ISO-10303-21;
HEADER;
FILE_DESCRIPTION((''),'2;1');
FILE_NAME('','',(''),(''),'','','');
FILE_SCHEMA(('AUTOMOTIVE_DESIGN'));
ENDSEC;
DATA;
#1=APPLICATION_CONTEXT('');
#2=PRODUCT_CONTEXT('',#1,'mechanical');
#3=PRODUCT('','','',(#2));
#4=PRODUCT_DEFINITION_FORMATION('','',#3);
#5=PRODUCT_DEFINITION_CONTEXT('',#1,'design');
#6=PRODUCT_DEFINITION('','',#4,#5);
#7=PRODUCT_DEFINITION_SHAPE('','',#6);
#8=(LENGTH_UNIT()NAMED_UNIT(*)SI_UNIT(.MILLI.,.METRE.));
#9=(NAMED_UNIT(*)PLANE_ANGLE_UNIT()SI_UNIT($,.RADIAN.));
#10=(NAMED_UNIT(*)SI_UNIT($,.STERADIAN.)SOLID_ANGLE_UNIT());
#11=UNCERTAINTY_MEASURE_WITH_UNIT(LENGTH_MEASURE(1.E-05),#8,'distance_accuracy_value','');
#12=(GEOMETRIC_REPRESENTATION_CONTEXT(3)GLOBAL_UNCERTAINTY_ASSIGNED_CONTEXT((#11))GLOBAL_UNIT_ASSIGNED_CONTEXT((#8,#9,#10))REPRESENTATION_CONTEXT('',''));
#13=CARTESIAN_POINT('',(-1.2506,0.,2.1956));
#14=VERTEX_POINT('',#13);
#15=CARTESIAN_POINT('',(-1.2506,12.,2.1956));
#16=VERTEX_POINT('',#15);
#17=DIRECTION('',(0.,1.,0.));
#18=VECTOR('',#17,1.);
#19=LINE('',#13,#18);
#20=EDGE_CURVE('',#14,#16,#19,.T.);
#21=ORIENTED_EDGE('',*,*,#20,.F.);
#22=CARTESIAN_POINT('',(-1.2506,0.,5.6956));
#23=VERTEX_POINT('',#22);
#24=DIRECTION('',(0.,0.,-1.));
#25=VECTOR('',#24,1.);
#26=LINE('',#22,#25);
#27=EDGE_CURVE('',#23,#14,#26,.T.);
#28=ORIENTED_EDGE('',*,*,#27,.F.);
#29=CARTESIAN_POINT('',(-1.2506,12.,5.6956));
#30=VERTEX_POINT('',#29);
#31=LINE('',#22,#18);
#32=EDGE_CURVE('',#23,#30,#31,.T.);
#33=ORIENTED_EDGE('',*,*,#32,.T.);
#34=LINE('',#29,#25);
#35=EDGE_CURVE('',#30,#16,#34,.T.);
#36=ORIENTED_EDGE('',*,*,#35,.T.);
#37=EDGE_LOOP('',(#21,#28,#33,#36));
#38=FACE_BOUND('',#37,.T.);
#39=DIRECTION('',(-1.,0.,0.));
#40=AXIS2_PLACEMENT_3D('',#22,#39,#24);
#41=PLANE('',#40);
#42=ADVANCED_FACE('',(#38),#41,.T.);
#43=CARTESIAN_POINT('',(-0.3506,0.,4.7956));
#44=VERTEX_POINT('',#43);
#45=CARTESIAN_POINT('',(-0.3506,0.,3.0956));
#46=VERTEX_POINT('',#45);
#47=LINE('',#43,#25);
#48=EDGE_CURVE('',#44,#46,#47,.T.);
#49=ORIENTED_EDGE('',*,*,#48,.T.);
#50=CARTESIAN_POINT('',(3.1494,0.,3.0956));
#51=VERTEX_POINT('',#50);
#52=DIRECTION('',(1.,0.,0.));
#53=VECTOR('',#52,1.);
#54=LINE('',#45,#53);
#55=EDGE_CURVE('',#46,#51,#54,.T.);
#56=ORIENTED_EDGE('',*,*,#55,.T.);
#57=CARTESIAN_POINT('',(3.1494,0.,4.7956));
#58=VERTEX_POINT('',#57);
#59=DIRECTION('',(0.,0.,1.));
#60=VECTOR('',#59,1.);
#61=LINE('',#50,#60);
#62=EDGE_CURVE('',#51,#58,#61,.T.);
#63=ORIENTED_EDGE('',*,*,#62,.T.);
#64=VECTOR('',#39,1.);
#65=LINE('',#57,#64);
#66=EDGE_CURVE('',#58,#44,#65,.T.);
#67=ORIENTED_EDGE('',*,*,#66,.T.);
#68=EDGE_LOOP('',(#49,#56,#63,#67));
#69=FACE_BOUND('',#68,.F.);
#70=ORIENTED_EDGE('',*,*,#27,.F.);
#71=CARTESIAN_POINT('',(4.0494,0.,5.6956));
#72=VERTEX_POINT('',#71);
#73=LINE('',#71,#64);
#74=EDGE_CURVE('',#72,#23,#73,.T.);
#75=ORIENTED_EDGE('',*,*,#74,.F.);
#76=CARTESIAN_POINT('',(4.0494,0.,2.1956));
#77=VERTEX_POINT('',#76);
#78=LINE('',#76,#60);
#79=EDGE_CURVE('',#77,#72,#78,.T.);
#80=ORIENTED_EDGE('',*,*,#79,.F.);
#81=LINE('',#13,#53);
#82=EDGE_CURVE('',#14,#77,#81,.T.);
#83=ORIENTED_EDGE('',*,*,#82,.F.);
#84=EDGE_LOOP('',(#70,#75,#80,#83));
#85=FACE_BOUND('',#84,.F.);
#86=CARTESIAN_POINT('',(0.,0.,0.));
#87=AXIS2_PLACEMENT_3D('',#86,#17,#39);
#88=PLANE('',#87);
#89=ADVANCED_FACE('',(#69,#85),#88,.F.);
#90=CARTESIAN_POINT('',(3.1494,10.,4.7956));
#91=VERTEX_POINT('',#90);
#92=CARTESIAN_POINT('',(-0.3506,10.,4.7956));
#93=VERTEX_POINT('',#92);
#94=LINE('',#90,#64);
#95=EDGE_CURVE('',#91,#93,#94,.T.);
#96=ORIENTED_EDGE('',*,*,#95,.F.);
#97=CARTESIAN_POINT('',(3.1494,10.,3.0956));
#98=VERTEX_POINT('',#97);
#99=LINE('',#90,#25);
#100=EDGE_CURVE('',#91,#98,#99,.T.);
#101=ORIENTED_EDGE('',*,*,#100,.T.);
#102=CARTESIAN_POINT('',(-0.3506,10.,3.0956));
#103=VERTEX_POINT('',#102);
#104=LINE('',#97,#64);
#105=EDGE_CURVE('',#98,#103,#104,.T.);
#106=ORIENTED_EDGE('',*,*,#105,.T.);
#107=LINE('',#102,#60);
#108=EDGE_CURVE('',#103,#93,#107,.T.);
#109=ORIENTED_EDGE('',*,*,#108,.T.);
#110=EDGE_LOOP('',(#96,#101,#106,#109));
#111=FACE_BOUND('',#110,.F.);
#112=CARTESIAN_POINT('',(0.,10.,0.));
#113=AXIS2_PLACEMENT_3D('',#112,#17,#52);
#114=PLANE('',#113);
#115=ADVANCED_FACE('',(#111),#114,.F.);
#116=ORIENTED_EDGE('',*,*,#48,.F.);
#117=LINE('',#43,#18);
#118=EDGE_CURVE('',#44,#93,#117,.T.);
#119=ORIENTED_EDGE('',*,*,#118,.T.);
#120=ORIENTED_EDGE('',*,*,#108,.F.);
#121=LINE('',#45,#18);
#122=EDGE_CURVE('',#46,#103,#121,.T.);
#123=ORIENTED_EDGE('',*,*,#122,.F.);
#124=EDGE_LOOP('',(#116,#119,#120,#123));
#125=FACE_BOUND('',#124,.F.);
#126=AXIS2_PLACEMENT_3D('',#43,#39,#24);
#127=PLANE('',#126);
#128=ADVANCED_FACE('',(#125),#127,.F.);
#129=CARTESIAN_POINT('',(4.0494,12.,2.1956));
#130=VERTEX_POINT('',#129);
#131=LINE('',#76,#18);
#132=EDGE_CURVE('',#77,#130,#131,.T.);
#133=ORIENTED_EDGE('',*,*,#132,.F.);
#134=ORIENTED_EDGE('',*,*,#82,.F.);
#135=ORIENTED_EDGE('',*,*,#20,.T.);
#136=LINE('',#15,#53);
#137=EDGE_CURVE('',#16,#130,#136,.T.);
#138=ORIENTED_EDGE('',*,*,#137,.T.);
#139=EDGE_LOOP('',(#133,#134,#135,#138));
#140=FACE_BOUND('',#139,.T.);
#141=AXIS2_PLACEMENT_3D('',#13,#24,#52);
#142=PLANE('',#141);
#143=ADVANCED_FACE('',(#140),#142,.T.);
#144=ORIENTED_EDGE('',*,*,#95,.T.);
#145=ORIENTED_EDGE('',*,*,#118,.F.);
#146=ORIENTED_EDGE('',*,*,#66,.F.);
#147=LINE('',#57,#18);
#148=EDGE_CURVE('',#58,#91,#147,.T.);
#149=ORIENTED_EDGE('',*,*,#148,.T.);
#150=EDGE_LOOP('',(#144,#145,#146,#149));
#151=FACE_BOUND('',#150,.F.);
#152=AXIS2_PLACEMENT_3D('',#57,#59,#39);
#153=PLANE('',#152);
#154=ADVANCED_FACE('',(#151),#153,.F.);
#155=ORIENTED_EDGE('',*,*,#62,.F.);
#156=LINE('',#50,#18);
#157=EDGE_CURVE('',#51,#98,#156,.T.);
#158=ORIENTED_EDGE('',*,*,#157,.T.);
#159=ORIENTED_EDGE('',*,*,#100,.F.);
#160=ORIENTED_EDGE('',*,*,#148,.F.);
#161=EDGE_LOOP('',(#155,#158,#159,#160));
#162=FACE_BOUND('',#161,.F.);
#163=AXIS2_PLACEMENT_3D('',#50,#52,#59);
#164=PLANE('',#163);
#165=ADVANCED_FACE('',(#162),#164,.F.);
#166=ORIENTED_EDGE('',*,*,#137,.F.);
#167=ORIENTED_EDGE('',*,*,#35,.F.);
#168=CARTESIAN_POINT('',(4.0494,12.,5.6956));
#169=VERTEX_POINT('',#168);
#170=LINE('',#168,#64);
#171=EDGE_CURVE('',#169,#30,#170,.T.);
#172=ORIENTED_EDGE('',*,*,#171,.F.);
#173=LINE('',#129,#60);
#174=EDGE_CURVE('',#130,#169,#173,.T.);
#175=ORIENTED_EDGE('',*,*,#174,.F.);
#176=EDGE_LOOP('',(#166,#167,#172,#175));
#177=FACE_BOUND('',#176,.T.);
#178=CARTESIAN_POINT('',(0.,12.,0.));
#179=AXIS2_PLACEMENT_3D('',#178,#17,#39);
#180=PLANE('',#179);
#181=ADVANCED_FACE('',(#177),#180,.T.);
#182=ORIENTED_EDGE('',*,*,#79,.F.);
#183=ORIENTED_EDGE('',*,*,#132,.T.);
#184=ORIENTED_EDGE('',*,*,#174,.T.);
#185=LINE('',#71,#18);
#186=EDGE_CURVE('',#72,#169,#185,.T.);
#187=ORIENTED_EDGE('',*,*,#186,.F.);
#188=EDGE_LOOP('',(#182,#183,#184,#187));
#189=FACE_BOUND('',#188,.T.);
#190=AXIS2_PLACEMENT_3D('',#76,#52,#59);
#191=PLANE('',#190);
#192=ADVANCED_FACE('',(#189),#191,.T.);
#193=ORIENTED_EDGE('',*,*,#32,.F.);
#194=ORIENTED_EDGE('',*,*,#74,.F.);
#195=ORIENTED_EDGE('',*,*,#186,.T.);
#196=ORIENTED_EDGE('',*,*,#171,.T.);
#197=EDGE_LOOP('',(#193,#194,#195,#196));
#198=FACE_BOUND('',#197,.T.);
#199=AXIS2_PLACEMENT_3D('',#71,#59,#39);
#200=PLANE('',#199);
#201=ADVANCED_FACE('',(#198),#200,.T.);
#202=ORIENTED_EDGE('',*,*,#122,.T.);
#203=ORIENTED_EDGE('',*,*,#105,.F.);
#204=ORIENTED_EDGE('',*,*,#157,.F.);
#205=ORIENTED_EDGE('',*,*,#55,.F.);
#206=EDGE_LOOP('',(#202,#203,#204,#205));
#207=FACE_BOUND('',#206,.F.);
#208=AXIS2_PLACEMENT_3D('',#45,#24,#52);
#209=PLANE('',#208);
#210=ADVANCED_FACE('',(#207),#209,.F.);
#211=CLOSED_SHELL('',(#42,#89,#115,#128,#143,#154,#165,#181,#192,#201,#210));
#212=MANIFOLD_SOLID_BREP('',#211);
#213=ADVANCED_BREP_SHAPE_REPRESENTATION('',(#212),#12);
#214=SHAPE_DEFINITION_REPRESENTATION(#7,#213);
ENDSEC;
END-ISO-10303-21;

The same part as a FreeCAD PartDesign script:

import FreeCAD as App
import Part
import Sketcher


def add_polygon(sketch, points):
    """Adds a closed chain of lines whose ends are joined by coincident constraints."""
    first, n = sketch.GeometryCount, len(points)
    for a, b in zip(points, points[1:] + points[:1]):
        sketch.addGeometry(Part.LineSegment(App.Vector(*a, 0), App.Vector(*b, 0)), False)
    for i in range(n):
        sketch.addConstraint(Sketcher.Constraint("Coincident", first + i, 2, first + (i + 1) % n, 1))

doc = App.newDocument("Part")
body = doc.addObject("PartDesign::Body", "Body")

# Sketch on XZ plane
sketch1 = body.newObject("Sketcher::SketchObject", "Sketch")
sketch1.AttachmentSupport = (doc.getObject("XZ_Plane"), [""])
sketch1.MapMode = "FlatFace"
add_polygon(sketch1, [(-1.3, 5.7), (4, 5.7), (4, 2.2), (-1.3, 2.2)])  # lines 0-3
add_polygon(sketch1, [(3.1, 3.1), (3.1, 4.8), (-0.4, 4.8), (-0.4, 3.1)])  # lines 4-7
sketch1.addConstraint([
    Sketcher.Constraint("Horizontal", 0),
    Sketcher.Constraint("Vertical", 1),
    Sketcher.Constraint("Horizontal", 2),
    Sketcher.Constraint("Vertical", 3),
    Sketcher.Constraint("Vertical", 4),
    Sketcher.Constraint("Horizontal", 5),
    Sketcher.Constraint("Vertical", 6),
    Sketcher.Constraint("Horizontal", 7),
    Sketcher.Constraint("Equal", 7, 1),
    Sketcher.Constraint("DistanceX", 5, 2, 5, 1, 3.5),
    Sketcher.Constraint("DistanceY", 4, 1, 4, 2, 1.7),
    Sketcher.Constraint("DistanceX", 4, 2, 0, 2, 0.9),
    Sketcher.Constraint("DistanceY", 4, 2, 0, 2, 0.9),
    Sketcher.Constraint("DistanceX", 3, 2, 5, 2, 0.9),
    Sketcher.Constraint("DistanceX", -1, 1, 0, 2, 4.0494),
    Sketcher.Constraint("DistanceY", -1, 1, 0, 2, 5.6956),
])
pad1 = body.newObject("PartDesign::Pad", "Pad")
pad1.Profile = sketch1
pad1.Length = 12
pad1.Reversed = True

# Sketch on XZ plane
sketch2 = body.newObject("Sketcher::SketchObject", "Sketch001")
sketch2.AttachmentSupport = (doc.getObject("XZ_Plane"), [""])
sketch2.MapMode = "FlatFace"
sketch2.AttachmentOffset = App.Placement(App.Vector(0, 0, -12), App.Rotation())
add_polygon(sketch2, [(-0.4, 4.8), (3.1, 4.8), (3.1, 3.1), (-0.4, 3.1)])  # lines 0-3
sketch2.addConstraint([
    Sketcher.Constraint("Horizontal", 0),
    Sketcher.Constraint("Vertical", 1),
    Sketcher.Constraint("Horizontal", 2),
    Sketcher.Constraint("Vertical", 3),
    Sketcher.Constraint("DistanceX", 0, 1, 0, 2, 3.5),
    Sketcher.Constraint("DistanceY", 1, 2, 1, 1, 1.7),
    Sketcher.Constraint("DistanceX", -1, 1, 0, 2, 3.1494),
    Sketcher.Constraint("DistanceY", -1, 1, 0, 2, 4.7956),
])
pad2 = body.newObject("PartDesign::Pad", "Pad001")
pad2.Profile = sketch2
pad2.Length = 2

doc.recompute()
